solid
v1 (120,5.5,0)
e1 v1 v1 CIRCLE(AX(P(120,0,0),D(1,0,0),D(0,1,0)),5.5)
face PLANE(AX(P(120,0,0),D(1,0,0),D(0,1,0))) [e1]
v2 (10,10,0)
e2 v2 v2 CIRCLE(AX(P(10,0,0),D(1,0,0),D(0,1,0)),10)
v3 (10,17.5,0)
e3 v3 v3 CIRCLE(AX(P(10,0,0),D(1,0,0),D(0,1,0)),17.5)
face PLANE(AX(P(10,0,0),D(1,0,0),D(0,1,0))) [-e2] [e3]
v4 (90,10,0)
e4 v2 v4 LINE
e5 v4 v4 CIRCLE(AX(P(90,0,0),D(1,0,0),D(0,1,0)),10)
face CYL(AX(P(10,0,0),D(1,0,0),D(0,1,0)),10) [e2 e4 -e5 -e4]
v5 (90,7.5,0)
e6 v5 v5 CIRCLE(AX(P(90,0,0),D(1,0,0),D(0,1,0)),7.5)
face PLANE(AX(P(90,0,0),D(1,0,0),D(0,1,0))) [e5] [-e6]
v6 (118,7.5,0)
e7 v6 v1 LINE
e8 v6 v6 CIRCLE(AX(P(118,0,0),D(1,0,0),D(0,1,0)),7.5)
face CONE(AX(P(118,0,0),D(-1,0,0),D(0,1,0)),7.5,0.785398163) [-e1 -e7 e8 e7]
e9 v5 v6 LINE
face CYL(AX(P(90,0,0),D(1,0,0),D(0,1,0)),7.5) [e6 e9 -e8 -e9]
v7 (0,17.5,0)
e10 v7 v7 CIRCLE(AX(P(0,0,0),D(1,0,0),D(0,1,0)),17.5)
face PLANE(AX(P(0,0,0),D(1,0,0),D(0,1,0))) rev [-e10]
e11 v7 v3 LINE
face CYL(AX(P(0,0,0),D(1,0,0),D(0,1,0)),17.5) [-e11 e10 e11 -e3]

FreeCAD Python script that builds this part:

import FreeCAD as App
import Part
import Sketcher

V = App.Vector


def edges_at(feature, points):
    """Names of the edges that pass closest to the given points."""
    edges = feature.Shape.Edges
    near = lambda p: min(range(len(edges)), key=lambda i: edges[i].distToShape(Part.Vertex(*p))[0])
    return sorted({f"Edge{near(p) + 1}" for p in points})


def add_polygon(sketch, points):
    """Adds a closed chain of lines whose ends are joined by coincident constraints."""
    first, n = sketch.GeometryCount, len(points)
    for a, b in zip(points, points[1:] + points[:1]):
        sketch.addGeometry(Part.LineSegment(App.Vector(*a, 0), App.Vector(*b, 0)), False)
    for i in range(n):
        sketch.addConstraint(Sketcher.Constraint("Coincident", first + i, 2, first + (i + 1) % n, 1))

doc = App.newDocument("Part")
body = doc.addObject("PartDesign::Body", "Body")

# Sketch on XY plane
sketch1 = body.newObject("Sketcher::SketchObject", "Sketch")
sketch1.AttachmentSupport = (doc.getObject("XY_Plane"), [""])
sketch1.MapMode = "FlatFace"
add_polygon(sketch1, [(0, 17.5), (0, 0), (120, 0), (120, 7.5), (90, 7.5), (90, 10), (10, 10), (10, 17.5)])  # lines 0-7
sketch1.addConstraint([
    Sketcher.Constraint("Vertical", 0),
    Sketcher.Constraint("Horizontal", 1),
    Sketcher.Constraint("Vertical", 2),
    Sketcher.Constraint("Horizontal", 3),
    Sketcher.Constraint("Vertical", 4),
    Sketcher.Constraint("Horizontal", 5),
    Sketcher.Constraint("Vertical", 6),
    Sketcher.Constraint("Horizontal", 7),
    Sketcher.Constraint("Coincident", 0, 2, -1, 1),
    Sketcher.Constraint("Equal", 2, 6),
    Sketcher.Constraint("DistanceX", 1, 1, 1, 2, 120.0),
    Sketcher.Constraint("DistanceX", 3, 2, 3, 1, 30.0),
    Sketcher.Constraint("DistanceX", 5, 2, 5, 1, 80.0),
    Sketcher.Constraint("DistanceY", 0, 2, 0, 1, 17.5),
    Sketcher.Constraint("DistanceY", 2, 1, 2, 2, 7.5),
])
revolution = body.newObject("PartDesign::Revolution", "Revolution")
revolution.Profile = sketch1
revolution.ReferenceAxis = (sketch1, ["H_Axis"])
revolution.Angle = 360
doc.recompute()

chamfer = body.newObject("PartDesign::Chamfer", "Chamfer")
chamfer.Base = (revolution, edges_at(revolution, [(120, -7.5, 0)]))
chamfer.Size = 2

doc.recompute()
